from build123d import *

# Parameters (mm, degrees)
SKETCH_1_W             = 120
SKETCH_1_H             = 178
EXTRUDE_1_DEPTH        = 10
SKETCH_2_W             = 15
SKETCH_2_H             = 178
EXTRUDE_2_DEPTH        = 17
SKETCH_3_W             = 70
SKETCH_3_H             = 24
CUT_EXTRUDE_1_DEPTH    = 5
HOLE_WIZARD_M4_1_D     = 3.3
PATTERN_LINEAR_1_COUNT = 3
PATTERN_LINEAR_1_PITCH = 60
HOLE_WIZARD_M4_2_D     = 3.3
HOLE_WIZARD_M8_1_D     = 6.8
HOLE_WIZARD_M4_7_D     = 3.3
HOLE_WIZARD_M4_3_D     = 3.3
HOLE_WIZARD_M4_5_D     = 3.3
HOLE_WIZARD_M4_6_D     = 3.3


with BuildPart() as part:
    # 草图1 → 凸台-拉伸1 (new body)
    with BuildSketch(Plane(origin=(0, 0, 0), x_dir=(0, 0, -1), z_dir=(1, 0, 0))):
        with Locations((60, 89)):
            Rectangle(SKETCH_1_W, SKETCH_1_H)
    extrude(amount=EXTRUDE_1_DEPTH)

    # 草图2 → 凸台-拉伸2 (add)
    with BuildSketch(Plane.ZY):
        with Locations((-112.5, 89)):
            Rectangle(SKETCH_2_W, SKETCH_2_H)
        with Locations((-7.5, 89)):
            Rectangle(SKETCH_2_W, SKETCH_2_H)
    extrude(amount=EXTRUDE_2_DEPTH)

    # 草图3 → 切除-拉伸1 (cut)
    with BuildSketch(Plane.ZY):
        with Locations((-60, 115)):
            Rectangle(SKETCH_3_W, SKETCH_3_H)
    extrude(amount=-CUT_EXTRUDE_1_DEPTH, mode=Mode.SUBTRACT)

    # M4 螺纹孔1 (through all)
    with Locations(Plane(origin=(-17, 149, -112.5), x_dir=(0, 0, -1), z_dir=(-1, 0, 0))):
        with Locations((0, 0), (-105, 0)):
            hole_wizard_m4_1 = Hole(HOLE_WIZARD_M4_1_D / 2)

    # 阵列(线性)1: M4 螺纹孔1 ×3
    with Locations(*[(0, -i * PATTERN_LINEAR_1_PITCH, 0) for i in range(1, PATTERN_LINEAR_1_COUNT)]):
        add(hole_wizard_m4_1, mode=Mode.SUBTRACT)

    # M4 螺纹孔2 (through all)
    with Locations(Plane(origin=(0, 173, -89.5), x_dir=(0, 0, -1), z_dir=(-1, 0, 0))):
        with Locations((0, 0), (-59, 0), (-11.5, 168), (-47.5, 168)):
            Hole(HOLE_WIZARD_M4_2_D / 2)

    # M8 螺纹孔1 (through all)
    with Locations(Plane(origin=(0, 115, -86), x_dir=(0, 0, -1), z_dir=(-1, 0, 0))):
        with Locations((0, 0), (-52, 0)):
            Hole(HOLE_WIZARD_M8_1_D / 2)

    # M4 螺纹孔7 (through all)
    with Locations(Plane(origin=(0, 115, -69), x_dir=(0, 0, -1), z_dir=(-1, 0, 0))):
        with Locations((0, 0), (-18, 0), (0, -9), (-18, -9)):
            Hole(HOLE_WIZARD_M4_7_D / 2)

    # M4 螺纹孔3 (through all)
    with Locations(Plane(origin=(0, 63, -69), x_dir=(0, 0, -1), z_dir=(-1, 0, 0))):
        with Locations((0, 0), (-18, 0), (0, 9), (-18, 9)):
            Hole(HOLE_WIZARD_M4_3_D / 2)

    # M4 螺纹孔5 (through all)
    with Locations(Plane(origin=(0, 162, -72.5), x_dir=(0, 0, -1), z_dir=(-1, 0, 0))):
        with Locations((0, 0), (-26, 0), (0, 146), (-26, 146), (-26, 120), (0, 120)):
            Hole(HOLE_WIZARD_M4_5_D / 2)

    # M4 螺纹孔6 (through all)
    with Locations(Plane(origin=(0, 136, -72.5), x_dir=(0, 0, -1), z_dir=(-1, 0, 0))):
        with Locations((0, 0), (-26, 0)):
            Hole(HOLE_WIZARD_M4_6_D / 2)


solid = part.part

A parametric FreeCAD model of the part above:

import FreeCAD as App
import Part
import Sketcher

V = App.Vector

doc = App.newDocument("Part")
params = doc.addObject("Spreadsheet::Sheet", "Params")
for row, (alias, value) in enumerate([
    ("sketch1_width", "178 mm"),
    ("sketch1_height", "120 mm"),
    ("pad1_length", "10 mm"),
    ("sketch2_width", "178 mm"),
    ("sketch2_height", "15 mm"),
    ("pad2_length", "17 mm"),
    ("sketch3_width", "24 mm"),
    ("sketch3_height", "70 mm"),
    ("pocket1_length", "5 mm"),
    ("sketch4_diameter", "3.3 mm"),
    ("hole_diameter", "3.3 mm"),
    ("linearpattern_pitch", "60 mm"),
    ("sketch5_diameter", "3.3 mm"),
    ("hole2_diameter", "3.3 mm"),
    ("sketch6_diameter", "6.8 mm"),
    ("hole3_diameter", "6.8 mm"),
    ("sketch7_diameter", "3.3 mm"),
    ("hole4_diameter", "3.3 mm"),
    ("sketch8_diameter", "3.3 mm"),
    ("hole5_diameter", "3.3 mm"),
    ("sketch9_diameter", "3.3 mm"),
    ("hole6_diameter", "3.3 mm"),
    ("sketch10_diameter", "3.3 mm"),
    ("hole7_diameter", "3.3 mm"),
], start=1):
    params.set(f"A{row}", alias)
    params.set(f"B{row}", "=" + value)
    params.setAlias(f"B{row}", alias)

body = doc.addObject("PartDesign::Body", "Body")

# Sketch on YZ plane
sketch1 = body.newObject("Sketcher::SketchObject", "Sketch")
sketch1.AttachmentSupport = (doc.getObject("YZ_Plane"), [""])
sketch1.MapMode = "FlatFace"
sketch1.addGeometry([
    Part.LineSegment(V(178, 0, 0), V(0, 0, 0)),
    Part.LineSegment(V(0, 0, 0), V(0, -120, 0)),
    Part.LineSegment(V(0, -120, 0), V(178, -120, 0)),
    Part.LineSegment(V(178, -120, 0), V(178, 0, 0)),
], False)
sketch1.addConstraint([
    Sketcher.Constraint("Coincident", 0, 2, 1, 1),
    Sketcher.Constraint("Coincident", 1, 2, 2, 1),
    Sketcher.Constraint("Coincident", 2, 2, 3, 1),
    Sketcher.Constraint("Coincident", 3, 2, 0, 1),
    Sketcher.Constraint("Horizontal", 0),
    Sketcher.Constraint("Vertical", 1),
    Sketcher.Constraint("Horizontal", 2),
    Sketcher.Constraint("Vertical", 3),
    Sketcher.Constraint("Coincident", 0, 2, -1, 1),
    Sketcher.Constraint("DistanceX", 0, 2, 0, 1, 178.0),
    Sketcher.Constraint("DistanceY", 1, 2, 1, 1, 120.0),
])
sketch1.setExpression("Constraints[9]", "Params.sketch1_width")
sketch1.setExpression("Constraints[10]", "Params.sketch1_height")
pad1 = body.newObject("PartDesign::Pad", "Pad")
pad1.Profile = sketch1
pad1.setExpression("Length", "Params.pad1_length")

# Sketch on YZ plane
sketch2 = body.newObject("Sketcher::SketchObject", "Sketch001")
sketch2.AttachmentSupport = (doc.getObject("YZ_Plane"), [""])
sketch2.MapMode = "FlatFace"
sketch2.addGeometry([
    Part.LineSegment(V(178, -120, 0), V(0, -120, 0)),  # 0
    Part.LineSegment(V(0, -120, 0), V(0, -105, 0)),  # 1
    Part.LineSegment(V(0, -105, 0), V(178, -105, 0)),  # 2
    Part.LineSegment(V(178, -105, 0), V(178, -120, 0)),  # 3
    Part.LineSegment(V(178, -15, 0), V(0, -15, 0)),  # 4
    Part.LineSegment(V(0, -15, 0), V(0, 0, 0)),  # 5
    Part.LineSegment(V(0, 0, 0), V(178, 0, 0)),  # 6
    Part.LineSegment(V(178, 0, 0), V(178, -15, 0)),  # 7
], False)
sketch2.addConstraint([
    Sketcher.Constraint("Coincident", 0, 2, 1, 1),
    Sketcher.Constraint("Coincident", 1, 2, 2, 1),
    Sketcher.Constraint("Coincident", 2, 2, 3, 1),
    Sketcher.Constraint("Coincident", 3, 2, 0, 1),
    Sketcher.Constraint("Coincident", 4, 2, 5, 1),
    Sketcher.Constraint("Coincident", 5, 2, 6, 1),
    Sketcher.Constraint("Coincident", 6, 2, 7, 1),
    Sketcher.Constraint("Coincident", 7, 2, 4, 1),
    Sketcher.Constraint("Horizontal", 0),
    Sketcher.Constraint("Vertical", 1),
    Sketcher.Constraint("Horizontal", 2),
    Sketcher.Constraint("Vertical", 3),
    Sketcher.Constraint("Horizontal", 4),
    Sketcher.Constraint("Vertical", 5),
    Sketcher.Constraint("Horizontal", 6),
    Sketcher.Constraint("Vertical", 7),
    Sketcher.Constraint("Coincident", 5, 2, -1, 1),
    Sketcher.Constraint("PointOnObject", 0, 2, -2),
    Sketcher.Constraint("Vertical", 3, 2, 6, 2),
    Sketcher.Constraint("Equal", 3, 5),
    Sketcher.Constraint("DistanceX", 0, 2, 0, 1, 178.0),
    Sketcher.Constraint("DistanceY", 1, 1, 1, 2, 15.0),
    Sketcher.Constraint("DistanceY", 0, 2, -1, 1, 120.0),
])
sketch2.setExpression("Constraints[20]", "Params.sketch2_width")
sketch2.setExpression("Constraints[21]", "Params.sketch2_height")
pad2 = body.newObject("PartDesign::Pad", "Pad001")
pad2.Profile = sketch2
pad2.setExpression("Length", "Params.pad2_length")
pad2.Reversed = True

# Sketch on YZ plane
sketch3 = body.newObject("Sketcher::SketchObject", "Sketch002")
sketch3.AttachmentSupport = (doc.getObject("YZ_Plane"), [""])
sketch3.MapMode = "FlatFace"
sketch3.addGeometry([
    Part.LineSegment(V(127, -95, 0), V(103, -95, 0)),
    Part.LineSegment(V(103, -95, 0), V(103, -25, 0)),
    Part.LineSegment(V(103, -25, 0), V(127, -25, 0)),
    Part.LineSegment(V(127, -25, 0), V(127, -95, 0)),
], False)
sketch3.addConstraint([
    Sketcher.Constraint("Coincident", 0, 2, 1, 1),
    Sketcher.Constraint("Coincident", 1, 2, 2, 1),
    Sketcher.Constraint("Coincident", 2, 2, 3, 1),
    Sketcher.Constraint("Coincident", 3, 2, 0, 1),
    Sketcher.Constraint("Horizontal", 0),
    Sketcher.Constraint("Vertical", 1),
    Sketcher.Constraint("Horizontal", 2),
    Sketcher.Constraint("Vertical", 3),
    Sketcher.Constraint("DistanceX", 0, 2, 0, 1, 24.0),
    Sketcher.Constraint("DistanceY", 1, 1, 1, 2, 70.0),
    Sketcher.Constraint("DistanceX", -1, 1, 0, 2, 103.0),
    Sketcher.Constraint("DistanceY", 0, 2, -1, 1, 95.0),
])
sketch3.setExpression("Constraints[8]", "Params.sketch3_width")
sketch3.setExpression("Constraints[9]", "Params.sketch3_height")
pocket1 = body.newObject("PartDesign::Pocket", "Pocket")
pocket1.Profile = sketch3
pocket1.setExpression("Length", "Params.pocket1_length")
pocket1.Reversed = True

# Sketch on YZ plane
sketch4 = body.newObject("Sketcher::SketchObject", "Sketch003")
sketch4.AttachmentSupport = (doc.getObject("YZ_Plane"), [""])
sketch4.MapMode = "FlatFace"
sketch4.AttachmentOffset = App.Placement(V(0, 0, -17), App.Rotation())
sketch4.addGeometry([
    Part.Circle(V(149, -112.5, 0), V(0, 0, 1), 1.6),
    Part.Circle(V(149, -7.5, 0), V(0, 0, 1), 1.6),
], False)
sketch4.addConstraint([
    Sketcher.Constraint("Equal", 0, 1),
    Sketcher.Constraint("Vertical", 0, 3, 1, 3),
    Sketcher.Constraint("Diameter", 0, 3.3),
    Sketcher.Constraint("DistanceX", -1, 1, 0, 3, 149.0),
    Sketcher.Constraint("DistanceY", 0, 3, 1, 3, 105.0),
    Sketcher.Constraint("DistanceY", 0, 3, -1, 1, 112.5),
])
sketch4.setExpression("Constraints[2]", "Params.sketch4_diameter")
doc.recompute()
hole = body.newObject("PartDesign::Hole", "Hole")
hole.Profile = sketch4
hole.ThreadType = "None"
hole.setExpression("Diameter", "Params.hole_diameter")
hole.DepthType = "ThroughAll"
hole.Reversed = True
doc.recompute()

linearpattern = body.newObject("PartDesign::LinearPattern", "LinearPattern")
linearpattern.Originals = [hole]
linearpattern.Direction = (doc.getObject("Y_Axis"), [""])
linearpattern.Mode = "offset"
linearpattern.setExpression("Offset", "Params.linearpattern_pitch")
linearpattern.Occurrences = 3
linearpattern.Reversed = True
body.Tip = linearpattern

# Sketch on YZ plane
sketch5 = body.newObject("Sketcher::SketchObject", "Sketch004")
sketch5.AttachmentSupport = (doc.getObject("YZ_Plane"), [""])
sketch5.MapMode = "FlatFace"
sketch5.addGeometry([
    Part.Circle(V(173, -89.5, 0), V(0, 0, 1), 1.6),
    Part.Circle(V(173, -30.5, 0), V(0, 0, 1), 1.6),
    Part.Circle(V(5, -78, 0), V(0, 0, 1), 1.6),
    Part.Circle(V(5, -42, 0), V(0, 0, 1), 1.6),
], False)
sketch5.addConstraint([
    Sketcher.Constraint("Equal", 0, 1),
    Sketcher.Constraint("Equal", 1, 2),
    Sketcher.Constraint("Equal", 2, 3),
    Sketcher.Constraint("Vertical", 0, 3, 1, 3),
    Sketcher.Constraint("Vertical", 2, 3, 3, 3),
    Sketcher.Constraint("Diameter", 0, 3.3),
    Sketcher.Constraint("DistanceX", -1, 1, 0, 3, 173.0),
    Sketcher.Constraint("DistanceX", -1, 1, 2, 3, 5.0),
    Sketcher.Constraint("DistanceY", 2, 3, -1, 1, 78.0),
    Sketcher.Constraint("DistanceY", 3, 3, -1, 1, 42.0),
    Sketcher.Constraint("DistanceY", 0, 3, 1, 3, 59.0),
    Sketcher.Constraint("DistanceY", 0, 3, -1, 1, 89.5),
])
sketch5.setExpression("Constraints[5]", "Params.sketch5_diameter")
doc.recompute()
hole2 = body.newObject("PartDesign::Hole", "Hole001")
hole2.Profile = sketch5
hole2.ThreadType = "None"
hole2.setExpression("Diameter", "Params.hole2_diameter")
hole2.DepthType = "ThroughAll"
hole2.Reversed = True

# Sketch on YZ plane
sketch6 = body.newObject("Sketcher::SketchObject", "Sketch005")
sketch6.AttachmentSupport = (doc.getObject("YZ_Plane"), [""])
sketch6.MapMode = "FlatFace"
sketch6.addGeometry([
    Part.Circle(V(115, -86, 0), V(0, 0, 1), 3.4),
    Part.Circle(V(115, -34, 0), V(0, 0, 1), 3.4),
], False)
sketch6.addConstraint([
    Sketcher.Constraint("Equal", 0, 1),
    Sketcher.Constraint("Vertical", 0, 3, 1, 3),
    Sketcher.Constraint("Diameter", 0, 6.8),
    Sketcher.Constraint("DistanceX", -1, 1, 0, 3, 115.0),
    Sketcher.Constraint("DistanceY", 0, 3, -1, 1, 86.0),
    Sketcher.Constraint("DistanceY", 1, 3, -1, 1, 34.0),
])
sketch6.setExpression("Constraints[2]", "Params.sketch6_diameter")
doc.recompute()
hole3 = body.newObject("PartDesign::Hole", "Hole002")
hole3.Profile = sketch6
hole3.ThreadType = "None"
hole3.setExpression("Diameter", "Params.hole3_diameter")
hole3.DepthType = "ThroughAll"
hole3.Reversed = True

# Sketch on YZ plane
sketch7 = body.newObject("Sketcher::SketchObject", "Sketch006")
sketch7.AttachmentSupport = (doc.getObject("YZ_Plane"), [""])
sketch7.MapMode = "FlatFace"
sketch7.addGeometry([
    Part.Circle(V(115, -69, 0), V(0, 0, 1), 1.6),
    Part.Circle(V(115, -51, 0), V(0, 0, 1), 1.6),
    Part.Circle(V(124, -69, 0), V(0, 0, 1), 1.6),
    Part.Circle(V(124, -51, 0), V(0, 0, 1), 1.6),
], False)
sketch7.addConstraint([
    Sketcher.Constraint("Equal", 0, 1),
    Sketcher.Constraint("Equal", 1, 2),
    Sketcher.Constraint("Equal", 2, 3),
    Sketcher.Constraint("Horizontal", 0, 3, 2, 3),
    Sketcher.Constraint("Horizontal", 1, 3, 3, 3),
    Sketcher.Constraint("Vertical", 0, 3, 1, 3),
    Sketcher.Constraint("Vertical", 2, 3, 3, 3),
    Sketcher.Constraint("Diameter", 0, 3.3),
    Sketcher.Constraint("DistanceX", -1, 1, 0, 3, 115.0),
    Sketcher.Constraint("DistanceY", 0, 3, -1, 1, 69.0),
    Sketcher.Constraint("DistanceY", 1, 3, -1, 1, 51.0),
    Sketcher.Constraint("DistanceX", -1, 1, 2, 3, 124.0),
])
sketch7.setExpression("Constraints[7]", "Params.sketch7_diameter")
doc.recompute()
hole4 = body.newObject("PartDesign::Hole", "Hole003")
hole4.Profile = sketch7
hole4.ThreadType = "None"
hole4.setExpression("Diameter", "Params.hole4_diameter")
hole4.DepthType = "ThroughAll"
hole4.Reversed = True

# Sketch on YZ plane
sketch8 = body.newObject("Sketcher::SketchObject", "Sketch007")
sketch8.AttachmentSupport = (doc.getObject("YZ_Plane"), [""])
sketch8.MapMode = "FlatFace"
sketch8.addGeometry([
    Part.Circle(V(63, -69, 0), V(0, 0, 1), 1.6),
    Part.Circle(V(63, -51, 0), V(0, 0, 1), 1.6),
    Part.Circle(V(54, -69, 0), V(0, 0, 1), 1.6),
    Part.Circle(V(54, -51, 0), V(0, 0, 1), 1.6),
], False)
sketch8.addConstraint([
    Sketcher.Constraint("Equal", 0, 1),
    Sketcher.Constraint("Equal", 1, 2),
    Sketcher.Constraint("Equal", 2, 3),
    Sketcher.Constraint("Horizontal", 0, 3, 2, 3),
    Sketcher.Constraint("Horizontal", 1, 3, 3, 3),
    Sketcher.Constraint("Vertical", 0, 3, 1, 3),
    Sketcher.Constraint("Vertical", 2, 3, 3, 3),
    Sketcher.Constraint("Diameter", 0, 3.3),
    Sketcher.Constraint("DistanceX", -1, 1, 0, 3, 63.0),
    Sketcher.Constraint("DistanceY", 0, 3, -1, 1, 69.0),
    Sketcher.Constraint("DistanceY", 1, 3, -1, 1, 51.0),
    Sketcher.Constraint("DistanceX", -1, 1, 2, 3, 54.0),
])
sketch8.setExpression("Constraints[7]", "Params.sketch8_diameter")
doc.recompute()
hole5 = body.newObject("PartDesign::Hole", "Hole004")
hole5.Profile = sketch8
hole5.ThreadType = "None"
hole5.setExpression("Diameter", "Params.hole5_diameter")
hole5.DepthType = "ThroughAll"
hole5.Reversed = True

# Sketch on YZ plane
sketch9 = body.newObject("Sketcher::SketchObject", "Sketch008")
sketch9.AttachmentSupport = (doc.getObject("YZ_Plane"), [""])
sketch9.MapMode = "FlatFace"
sketch9.addGeometry([
    Part.Circle(V(162, -72.5, 0), V(0, 0, 1), 1.6),  # 0
    Part.Circle(V(162, -46.5, 0), V(0, 0, 1), 1.6),  # 1
    Part.Circle(V(16, -72.5, 0), V(0, 0, 1), 1.6),  # 2
    Part.Circle(V(16, -46.5, 0), V(0, 0, 1), 1.6),  # 3
    Part.Circle(V(42, -46.5, 0), V(0, 0, 1), 1.6),  # 4
    Part.Circle(V(42, -72.5, 0), V(0, 0, 1), 1.6),  # 5
], False)
sketch9.addConstraint([
    Sketcher.Constraint("Equal", 0, 1),
    Sketcher.Constraint("Equal", 1, 2),
    Sketcher.Constraint("Equal", 2, 3),
    Sketcher.Constraint("Equal", 3, 4),
    Sketcher.Constraint("Equal", 4, 5),
    Sketcher.Constraint("Horizontal", 0, 3, 2, 3),
    Sketcher.Constraint("Horizontal", 1, 3, 3, 3),
    Sketcher.Constraint("Horizontal", 3, 3, 4, 3),
    Sketcher.Constraint("Horizontal", 2, 3, 5, 3),
    Sketcher.Constraint("Vertical", 0, 3, 1, 3),
    Sketcher.Constraint("Vertical", 2, 3, 3, 3),
    Sketcher.Constraint("Vertical", 4, 3, 5, 3),
    Sketcher.Constraint("Diameter", 0, 3.3),
    Sketcher.Constraint("DistanceX", -1, 1, 0, 3, 162.0),
    Sketcher.Constraint("DistanceX", -1, 1, 2, 3, 16.0),
    Sketcher.Constraint("DistanceX", -1, 1, 4, 3, 42.0),
    Sketcher.Constraint("DistanceY", 0, 3, 1, 3, 26.0),
    Sketcher.Constraint("DistanceY", 0, 3, -1, 1, 72.5),
])
sketch9.setExpression("Constraints[12]", "Params.sketch9_diameter")
doc.recompute()
hole6 = body.newObject("PartDesign::Hole", "Hole005")
hole6.Profile = sketch9
hole6.ThreadType = "None"
hole6.setExpression("Diameter", "Params.hole6_diameter")
hole6.DepthType = "ThroughAll"
hole6.Reversed = True

# Sketch on YZ plane
sketch10 = body.newObject("Sketcher::SketchObject", "Sketch009")
sketch10.AttachmentSupport = (doc.getObject("YZ_Plane"), [""])
sketch10.MapMode = "FlatFace"
sketch10.addGeometry([
    Part.Circle(V(136, -72.5, 0), V(0, 0, 1), 1.6),
    Part.Circle(V(136, -46.5, 0), V(0, 0, 1), 1.6),
], False)
sketch10.addConstraint([
    Sketcher.Constraint("Equal", 0, 1),
    Sketcher.Constraint("Vertical", 0, 3, 1, 3),
    Sketcher.Constraint("Diameter", 0, 3.3),
    Sketcher.Constraint("DistanceX", -1, 1, 0, 3, 136.0),
    Sketcher.Constraint("DistanceY", 0, 3, 1, 3, 26.0),
    Sketcher.Constraint("DistanceY", 0, 3, -1, 1, 72.5),
])
sketch10.setExpression("Constraints[2]", "Params.sketch10_diameter")
doc.recompute()
hole7 = body.newObject("PartDesign::Hole", "Hole006")
hole7.Profile = sketch10
hole7.ThreadType = "None"
hole7.setExpression("Diameter", "Params.hole7_diameter")
hole7.DepthType = "ThroughAll"
hole7.Reversed = True

doc.recompute()
